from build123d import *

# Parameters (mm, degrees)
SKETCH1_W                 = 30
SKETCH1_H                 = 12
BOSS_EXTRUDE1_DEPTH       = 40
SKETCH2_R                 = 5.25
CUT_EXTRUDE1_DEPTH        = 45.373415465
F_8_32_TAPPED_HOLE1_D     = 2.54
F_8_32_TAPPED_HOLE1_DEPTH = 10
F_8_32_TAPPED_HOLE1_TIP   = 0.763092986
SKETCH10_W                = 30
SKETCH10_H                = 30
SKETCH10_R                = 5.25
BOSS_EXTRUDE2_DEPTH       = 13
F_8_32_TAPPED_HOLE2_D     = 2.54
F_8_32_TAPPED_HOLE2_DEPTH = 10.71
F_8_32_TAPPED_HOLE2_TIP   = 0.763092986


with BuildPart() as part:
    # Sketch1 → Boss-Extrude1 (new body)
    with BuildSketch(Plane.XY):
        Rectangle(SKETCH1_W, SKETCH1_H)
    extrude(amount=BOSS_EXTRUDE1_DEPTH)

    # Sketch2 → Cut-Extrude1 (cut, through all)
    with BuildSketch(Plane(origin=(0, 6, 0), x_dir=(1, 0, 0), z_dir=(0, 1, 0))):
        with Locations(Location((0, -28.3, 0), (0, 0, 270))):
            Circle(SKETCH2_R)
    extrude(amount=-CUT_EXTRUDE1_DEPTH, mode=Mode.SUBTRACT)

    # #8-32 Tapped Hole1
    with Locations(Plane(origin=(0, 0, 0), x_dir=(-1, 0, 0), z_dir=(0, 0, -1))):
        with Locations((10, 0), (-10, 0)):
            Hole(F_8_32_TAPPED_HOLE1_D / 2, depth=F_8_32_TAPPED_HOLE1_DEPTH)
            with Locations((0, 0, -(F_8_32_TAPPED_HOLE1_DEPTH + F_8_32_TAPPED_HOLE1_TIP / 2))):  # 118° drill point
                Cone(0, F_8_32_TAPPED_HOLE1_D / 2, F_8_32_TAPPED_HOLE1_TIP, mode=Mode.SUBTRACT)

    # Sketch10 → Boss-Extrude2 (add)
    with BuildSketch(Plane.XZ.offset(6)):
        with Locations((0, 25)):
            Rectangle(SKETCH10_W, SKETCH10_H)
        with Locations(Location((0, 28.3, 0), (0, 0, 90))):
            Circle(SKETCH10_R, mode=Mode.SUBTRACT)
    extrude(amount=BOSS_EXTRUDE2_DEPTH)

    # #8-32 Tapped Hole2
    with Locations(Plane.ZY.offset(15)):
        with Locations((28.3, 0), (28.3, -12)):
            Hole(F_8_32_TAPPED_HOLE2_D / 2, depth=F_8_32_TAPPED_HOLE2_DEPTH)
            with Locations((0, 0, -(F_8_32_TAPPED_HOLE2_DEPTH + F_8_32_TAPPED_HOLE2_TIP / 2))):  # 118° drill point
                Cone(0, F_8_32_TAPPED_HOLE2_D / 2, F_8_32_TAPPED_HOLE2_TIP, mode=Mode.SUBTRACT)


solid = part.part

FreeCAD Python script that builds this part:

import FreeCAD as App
import Part
import Sketcher

V = App.Vector
Q = App.Units.Quantity


def add_polygon(sketch, points):
    """Adds a closed chain of lines whose ends are joined by coincident constraints."""
    first, n = sketch.GeometryCount, len(points)
    for a, b in zip(points, points[1:] + points[:1]):
        sketch.addGeometry(Part.LineSegment(App.Vector(*a, 0), App.Vector(*b, 0)), False)
    for i in range(n):
        sketch.addConstraint(Sketcher.Constraint("Coincident", first + i, 2, first + (i + 1) % n, 1))

doc = App.newDocument("Part")
body = doc.addObject("PartDesign::Body", "Body")

# Sketch on XY plane
sketch1 = body.newObject("Sketcher::SketchObject", "Sketch")
sketch1.AttachmentSupport = (doc.getObject("XY_Plane"), [""])
sketch1.MapMode = "FlatFace"
add_polygon(sketch1, [(-15, 6), (-15, -6), (15, -6), (15, 6)])  # lines 0-3
sketch1.addConstraint(Sketcher.Constraint("Vertical", 0))
sketch1.addConstraint(Sketcher.Constraint("Horizontal", 1))
sketch1.addConstraint(Sketcher.Constraint("Vertical", 2))
sketch1.addConstraint(Sketcher.Constraint("Horizontal", 3))
sketch1.addConstraint(Sketcher.Constraint("Symmetric", 0, 2, 2, 2, -1, 1))
sketch1.addConstraint(Sketcher.Constraint("DistanceX", 1, 1, 1, 2, Q("30 mm")))
sketch1.addConstraint(Sketcher.Constraint("DistanceY", 0, 2, 0, 1, Q("12 mm")))
pad1 = body.newObject("PartDesign::Pad", "Pad")
pad1.Profile = sketch1
pad1.Length = 40

# Sketch on XZ plane
sketch2 = body.newObject("Sketcher::SketchObject", "Sketch001")
sketch2.AttachmentSupport = (doc.getObject("XZ_Plane"), [""])
sketch2.MapMode = "FlatFace"
sketch2.AttachmentOffset = App.Placement(V(0, 0, -6), App.Rotation())
sketch2.addGeometry(Part.Circle(V(0, 28, 0), V(0, 0, 1), 5), False)
sketch2.addConstraint(Sketcher.Constraint("PointOnObject", 0, 3, -2))
sketch2.addConstraint(Sketcher.Constraint("Diameter", 0, Q("10.5 mm")))
sketch2.addConstraint(Sketcher.Constraint("DistanceY", -1, 1, 0, 3, Q("28.3 mm")))
pocket1 = body.newObject("PartDesign::Pocket", "Pocket")
pocket1.Profile = sketch2
pocket1.Type = "ThroughAll"
pocket1.Reversed = True

# Sketch on XY plane
sketch3 = body.newObject("Sketcher::SketchObject", "Sketch002")
sketch3.AttachmentSupport = (doc.getObject("XY_Plane"), [""])
sketch3.MapMode = "FlatFace"
sketch3.addGeometry(Part.Circle(V(-10, 0, 0), V(0, 0, 1), 1.3), False)
sketch3.addGeometry(Part.Circle(V(10, 0, 0), V(0, 0, 1), 1.3), False)
sketch3.addConstraint(Sketcher.Constraint("Equal", 0, 1))
sketch3.addConstraint(Sketcher.Constraint("Symmetric", 0, 3, 1, 3, -1, 1))
sketch3.addConstraint(Sketcher.Constraint("PointOnObject", 0, 3, -1))
sketch3.addConstraint(Sketcher.Constraint("Diameter", 0, Q("2.54 mm")))
sketch3.addConstraint(Sketcher.Constraint("DistanceX", 0, 3, -1, 1, Q("10 mm")))
doc.recompute()
hole = body.newObject("PartDesign::Hole", "Hole")
hole.Profile = sketch3
hole.ThreadType = "None"
hole.Diameter = 2.54
hole.DepthType = "Dimension"
hole.Depth = 10
hole.DrillPoint = "Angled"
hole.DrillPointAngle = 118
hole.Reversed = True

# Sketch on XZ plane
sketch4 = body.newObject("Sketcher::SketchObject", "Sketch003")
sketch4.AttachmentSupport = (doc.getObject("XZ_Plane"), [""])
sketch4.MapMode = "FlatFace"
sketch4.AttachmentOffset = App.Placement(V(0, 0, 6), App.Rotation())
add_polygon(sketch4, [(-15, 40), (-15, 10), (15, 10), (15, 40)])  # lines 0-3
sketch4.addGeometry(Part.Circle(V(0, 28, 0), V(0, 0, 1), 5), False)  # 4
sketch4.addConstraint(Sketcher.Constraint("Vertical", 0))
sketch4.addConstraint(Sketcher.Constraint("Horizontal", 1))
sketch4.addConstraint(Sketcher.Constraint("Vertical", 2))
sketch4.addConstraint(Sketcher.Constraint("Horizontal", 3))
sketch4.addConstraint(Sketcher.Constraint("PointOnObject", 4, 3, -2))
sketch4.addConstraint(Sketcher.Constraint("Equal", 3, 0))
sketch4.addConstraint(Sketcher.Constraint("Diameter", 4, Q("10.5 mm")))
sketch4.addConstraint(Sketcher.Constraint("DistanceX", 1, 1, 1, 2, Q("30 mm")))
sketch4.addConstraint(Sketcher.Constraint("DistanceX", 0, 2, -1, 1, Q("15 mm")))
sketch4.addConstraint(Sketcher.Constraint("DistanceY", -1, 1, 0, 2, Q("10 mm")))
sketch4.addConstraint(Sketcher.Constraint("DistanceY", -1, 1, 4, 3, Q("28.3 mm")))
pad2 = body.newObject("PartDesign::Pad", "Pad001")
pad2.Profile = sketch4
pad2.Length = 13

# Sketch on YZ plane
sketch5 = body.newObject("Sketcher::SketchObject", "Sketch004")
sketch5.AttachmentSupport = (doc.getObject("YZ_Plane"), [""])
sketch5.MapMode = "FlatFace"
sketch5.AttachmentOffset = App.Placement(V(0, 0, -15), App.Rotation())
sketch5.addGeometry(Part.Circle(V(0, 28.3, 0), V(0, 0, 1), 1.3), False)
sketch5.addGeometry(Part.Circle(V(-12, 28.3, 0), V(0, 0, 1), 1.3), False)
sketch5.addConstraint(Sketcher.Constraint("Equal", 0, 1))
sketch5.addConstraint(Sketcher.Constraint("PointOnObject", 0, 3, -2))
sketch5.addConstraint(Sketcher.Constraint("Horizontal", 0, 3, 1, 3))
sketch5.addConstraint(Sketcher.Constraint("Diameter", 0, Q("2.54 mm")))
sketch5.addConstraint(Sketcher.Constraint("DistanceX", 1, 3, -1, 1, Q("12 mm")))
sketch5.addConstraint(Sketcher.Constraint("DistanceY", -1, 1, 0, 3, Q("28.3 mm")))
doc.recompute()
hole2 = body.newObject("PartDesign::Hole", "Hole001")
hole2.Profile = sketch5
hole2.ThreadType = "None"
hole2.Diameter = 2.54
hole2.DepthType = "Dimension"
hole2.Depth = 10.71
hole2.DrillPoint = "Angled"
hole2.DrillPointAngle = 118
hole2.Reversed = True

doc.recompute()
